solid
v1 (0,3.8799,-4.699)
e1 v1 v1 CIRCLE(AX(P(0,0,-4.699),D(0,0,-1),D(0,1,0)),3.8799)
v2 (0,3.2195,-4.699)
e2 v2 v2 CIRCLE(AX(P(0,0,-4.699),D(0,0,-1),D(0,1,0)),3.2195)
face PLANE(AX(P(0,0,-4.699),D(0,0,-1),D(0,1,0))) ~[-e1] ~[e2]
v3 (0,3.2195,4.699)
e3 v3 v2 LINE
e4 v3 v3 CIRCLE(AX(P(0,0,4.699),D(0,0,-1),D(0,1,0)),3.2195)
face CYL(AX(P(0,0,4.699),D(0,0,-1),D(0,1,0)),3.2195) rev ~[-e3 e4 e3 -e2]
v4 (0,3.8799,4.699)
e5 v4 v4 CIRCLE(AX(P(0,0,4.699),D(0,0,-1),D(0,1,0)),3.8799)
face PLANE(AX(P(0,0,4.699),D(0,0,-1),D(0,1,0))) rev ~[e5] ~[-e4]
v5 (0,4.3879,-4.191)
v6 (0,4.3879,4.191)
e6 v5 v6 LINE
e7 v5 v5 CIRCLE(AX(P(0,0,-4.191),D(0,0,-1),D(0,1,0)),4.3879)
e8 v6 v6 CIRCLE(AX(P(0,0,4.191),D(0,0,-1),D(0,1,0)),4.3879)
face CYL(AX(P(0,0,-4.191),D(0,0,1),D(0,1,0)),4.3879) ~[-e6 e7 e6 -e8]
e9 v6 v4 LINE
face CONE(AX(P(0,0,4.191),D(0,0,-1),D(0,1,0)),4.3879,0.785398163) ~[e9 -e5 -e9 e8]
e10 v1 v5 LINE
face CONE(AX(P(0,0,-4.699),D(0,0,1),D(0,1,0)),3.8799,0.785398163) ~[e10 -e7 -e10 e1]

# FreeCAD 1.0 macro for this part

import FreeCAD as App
import Part
import Sketcher
Q = App.Units.Quantity

doc = App.newDocument("Part")
params = doc.addObject("Spreadsheet::Sheet", "Params")
for row, (alias, value) in enumerate([
    ("sketch1_height", "0.37 in"),
    ("sketch1_height2", "0.33 in"),
    ("sketch1_width", "0.026 in"),
    ("revolution_angle", "360 deg"),
], start=1):
    params.set(f"A{row}", alias)
    params.set(f"B{row}", "=" + value)
    params.setAlias(f"B{row}", alias)

body = doc.addObject("PartDesign::Body", "Body")

sketch1 = doc.addObject("Sketcher::SketchObject", "Sketch")
body.addObject(sketch1)
sketch1.AttachmentSupport = (doc.YZ_Plane, [""])
sketch1.MapMode = "FlatFace"
sketch1.addGeometry([
    Part.LineSegment(App.Vector(3.9, 4.7, 0), App.Vector(3.2, 4.7, 0)),
    Part.LineSegment(App.Vector(3.2, 4.7, 0), App.Vector(3.2, -4.7, 0)),
    Part.LineSegment(App.Vector(3.2, -4.7, 0), App.Vector(3.9, -4.7, 0)),
    Part.LineSegment(App.Vector(3.9, -4.7, 0), App.Vector(4.4, -4.2, 0)),
    Part.LineSegment(App.Vector(4.4, -4.2, 0), App.Vector(4.4, 4.2, 0)),
    Part.LineSegment(App.Vector(4.4, 4.2, 0), App.Vector(3.9, 4.7, 0)),
], False)
sketch1.addConstraint([
    Sketcher.Constraint("Coincident", 0, 2, 1, 1),
    Sketcher.Constraint("Coincident", 1, 2, 2, 1),
    Sketcher.Constraint("Coincident", 2, 2, 3, 1),
    Sketcher.Constraint("Coincident", 3, 2, 4, 1),
    Sketcher.Constraint("Coincident", 4, 2, 5, 1),
    Sketcher.Constraint("Coincident", 5, 2, 0, 1),
    Sketcher.Constraint("Horizontal", 0),
    Sketcher.Constraint("Vertical", 1),
    Sketcher.Constraint("Horizontal", 2),
    Sketcher.Constraint("Vertical", 4),
    Sketcher.Constraint("Symmetric", 2, 2, 5, 2, -1),
    Sketcher.Constraint("Perpendicular", 3, 5),
    Sketcher.Constraint("Equal", 3, 5),
    Sketcher.Constraint("DistanceY", 1, 2, 1, 1, Q("0.37 in")),
    Sketcher.Constraint("DistanceY", 4, 1, 4, 2, Q("0.33 in")),
    Sketcher.Constraint("DistanceX", 0, 2, 0, 1, Q("0.026 in")),
    Sketcher.Constraint("DistanceX", -1, 1, 0, 2, 3.2195),
])
sketch1.setExpression("Constraints[13]", "Params.sketch1_height")
sketch1.setExpression("Constraints[14]", "Params.sketch1_height2")
sketch1.setExpression("Constraints[15]", "Params.sketch1_width")
revolution = doc.addObject("PartDesign::Revolution", "Revolution")
body.addObject(revolution)
revolution.Profile = sketch1
revolution.ReferenceAxis = (sketch1, ["V_Axis"])
revolution.setExpression("Angle", "Params.revolution_angle")

doc.recompute()
